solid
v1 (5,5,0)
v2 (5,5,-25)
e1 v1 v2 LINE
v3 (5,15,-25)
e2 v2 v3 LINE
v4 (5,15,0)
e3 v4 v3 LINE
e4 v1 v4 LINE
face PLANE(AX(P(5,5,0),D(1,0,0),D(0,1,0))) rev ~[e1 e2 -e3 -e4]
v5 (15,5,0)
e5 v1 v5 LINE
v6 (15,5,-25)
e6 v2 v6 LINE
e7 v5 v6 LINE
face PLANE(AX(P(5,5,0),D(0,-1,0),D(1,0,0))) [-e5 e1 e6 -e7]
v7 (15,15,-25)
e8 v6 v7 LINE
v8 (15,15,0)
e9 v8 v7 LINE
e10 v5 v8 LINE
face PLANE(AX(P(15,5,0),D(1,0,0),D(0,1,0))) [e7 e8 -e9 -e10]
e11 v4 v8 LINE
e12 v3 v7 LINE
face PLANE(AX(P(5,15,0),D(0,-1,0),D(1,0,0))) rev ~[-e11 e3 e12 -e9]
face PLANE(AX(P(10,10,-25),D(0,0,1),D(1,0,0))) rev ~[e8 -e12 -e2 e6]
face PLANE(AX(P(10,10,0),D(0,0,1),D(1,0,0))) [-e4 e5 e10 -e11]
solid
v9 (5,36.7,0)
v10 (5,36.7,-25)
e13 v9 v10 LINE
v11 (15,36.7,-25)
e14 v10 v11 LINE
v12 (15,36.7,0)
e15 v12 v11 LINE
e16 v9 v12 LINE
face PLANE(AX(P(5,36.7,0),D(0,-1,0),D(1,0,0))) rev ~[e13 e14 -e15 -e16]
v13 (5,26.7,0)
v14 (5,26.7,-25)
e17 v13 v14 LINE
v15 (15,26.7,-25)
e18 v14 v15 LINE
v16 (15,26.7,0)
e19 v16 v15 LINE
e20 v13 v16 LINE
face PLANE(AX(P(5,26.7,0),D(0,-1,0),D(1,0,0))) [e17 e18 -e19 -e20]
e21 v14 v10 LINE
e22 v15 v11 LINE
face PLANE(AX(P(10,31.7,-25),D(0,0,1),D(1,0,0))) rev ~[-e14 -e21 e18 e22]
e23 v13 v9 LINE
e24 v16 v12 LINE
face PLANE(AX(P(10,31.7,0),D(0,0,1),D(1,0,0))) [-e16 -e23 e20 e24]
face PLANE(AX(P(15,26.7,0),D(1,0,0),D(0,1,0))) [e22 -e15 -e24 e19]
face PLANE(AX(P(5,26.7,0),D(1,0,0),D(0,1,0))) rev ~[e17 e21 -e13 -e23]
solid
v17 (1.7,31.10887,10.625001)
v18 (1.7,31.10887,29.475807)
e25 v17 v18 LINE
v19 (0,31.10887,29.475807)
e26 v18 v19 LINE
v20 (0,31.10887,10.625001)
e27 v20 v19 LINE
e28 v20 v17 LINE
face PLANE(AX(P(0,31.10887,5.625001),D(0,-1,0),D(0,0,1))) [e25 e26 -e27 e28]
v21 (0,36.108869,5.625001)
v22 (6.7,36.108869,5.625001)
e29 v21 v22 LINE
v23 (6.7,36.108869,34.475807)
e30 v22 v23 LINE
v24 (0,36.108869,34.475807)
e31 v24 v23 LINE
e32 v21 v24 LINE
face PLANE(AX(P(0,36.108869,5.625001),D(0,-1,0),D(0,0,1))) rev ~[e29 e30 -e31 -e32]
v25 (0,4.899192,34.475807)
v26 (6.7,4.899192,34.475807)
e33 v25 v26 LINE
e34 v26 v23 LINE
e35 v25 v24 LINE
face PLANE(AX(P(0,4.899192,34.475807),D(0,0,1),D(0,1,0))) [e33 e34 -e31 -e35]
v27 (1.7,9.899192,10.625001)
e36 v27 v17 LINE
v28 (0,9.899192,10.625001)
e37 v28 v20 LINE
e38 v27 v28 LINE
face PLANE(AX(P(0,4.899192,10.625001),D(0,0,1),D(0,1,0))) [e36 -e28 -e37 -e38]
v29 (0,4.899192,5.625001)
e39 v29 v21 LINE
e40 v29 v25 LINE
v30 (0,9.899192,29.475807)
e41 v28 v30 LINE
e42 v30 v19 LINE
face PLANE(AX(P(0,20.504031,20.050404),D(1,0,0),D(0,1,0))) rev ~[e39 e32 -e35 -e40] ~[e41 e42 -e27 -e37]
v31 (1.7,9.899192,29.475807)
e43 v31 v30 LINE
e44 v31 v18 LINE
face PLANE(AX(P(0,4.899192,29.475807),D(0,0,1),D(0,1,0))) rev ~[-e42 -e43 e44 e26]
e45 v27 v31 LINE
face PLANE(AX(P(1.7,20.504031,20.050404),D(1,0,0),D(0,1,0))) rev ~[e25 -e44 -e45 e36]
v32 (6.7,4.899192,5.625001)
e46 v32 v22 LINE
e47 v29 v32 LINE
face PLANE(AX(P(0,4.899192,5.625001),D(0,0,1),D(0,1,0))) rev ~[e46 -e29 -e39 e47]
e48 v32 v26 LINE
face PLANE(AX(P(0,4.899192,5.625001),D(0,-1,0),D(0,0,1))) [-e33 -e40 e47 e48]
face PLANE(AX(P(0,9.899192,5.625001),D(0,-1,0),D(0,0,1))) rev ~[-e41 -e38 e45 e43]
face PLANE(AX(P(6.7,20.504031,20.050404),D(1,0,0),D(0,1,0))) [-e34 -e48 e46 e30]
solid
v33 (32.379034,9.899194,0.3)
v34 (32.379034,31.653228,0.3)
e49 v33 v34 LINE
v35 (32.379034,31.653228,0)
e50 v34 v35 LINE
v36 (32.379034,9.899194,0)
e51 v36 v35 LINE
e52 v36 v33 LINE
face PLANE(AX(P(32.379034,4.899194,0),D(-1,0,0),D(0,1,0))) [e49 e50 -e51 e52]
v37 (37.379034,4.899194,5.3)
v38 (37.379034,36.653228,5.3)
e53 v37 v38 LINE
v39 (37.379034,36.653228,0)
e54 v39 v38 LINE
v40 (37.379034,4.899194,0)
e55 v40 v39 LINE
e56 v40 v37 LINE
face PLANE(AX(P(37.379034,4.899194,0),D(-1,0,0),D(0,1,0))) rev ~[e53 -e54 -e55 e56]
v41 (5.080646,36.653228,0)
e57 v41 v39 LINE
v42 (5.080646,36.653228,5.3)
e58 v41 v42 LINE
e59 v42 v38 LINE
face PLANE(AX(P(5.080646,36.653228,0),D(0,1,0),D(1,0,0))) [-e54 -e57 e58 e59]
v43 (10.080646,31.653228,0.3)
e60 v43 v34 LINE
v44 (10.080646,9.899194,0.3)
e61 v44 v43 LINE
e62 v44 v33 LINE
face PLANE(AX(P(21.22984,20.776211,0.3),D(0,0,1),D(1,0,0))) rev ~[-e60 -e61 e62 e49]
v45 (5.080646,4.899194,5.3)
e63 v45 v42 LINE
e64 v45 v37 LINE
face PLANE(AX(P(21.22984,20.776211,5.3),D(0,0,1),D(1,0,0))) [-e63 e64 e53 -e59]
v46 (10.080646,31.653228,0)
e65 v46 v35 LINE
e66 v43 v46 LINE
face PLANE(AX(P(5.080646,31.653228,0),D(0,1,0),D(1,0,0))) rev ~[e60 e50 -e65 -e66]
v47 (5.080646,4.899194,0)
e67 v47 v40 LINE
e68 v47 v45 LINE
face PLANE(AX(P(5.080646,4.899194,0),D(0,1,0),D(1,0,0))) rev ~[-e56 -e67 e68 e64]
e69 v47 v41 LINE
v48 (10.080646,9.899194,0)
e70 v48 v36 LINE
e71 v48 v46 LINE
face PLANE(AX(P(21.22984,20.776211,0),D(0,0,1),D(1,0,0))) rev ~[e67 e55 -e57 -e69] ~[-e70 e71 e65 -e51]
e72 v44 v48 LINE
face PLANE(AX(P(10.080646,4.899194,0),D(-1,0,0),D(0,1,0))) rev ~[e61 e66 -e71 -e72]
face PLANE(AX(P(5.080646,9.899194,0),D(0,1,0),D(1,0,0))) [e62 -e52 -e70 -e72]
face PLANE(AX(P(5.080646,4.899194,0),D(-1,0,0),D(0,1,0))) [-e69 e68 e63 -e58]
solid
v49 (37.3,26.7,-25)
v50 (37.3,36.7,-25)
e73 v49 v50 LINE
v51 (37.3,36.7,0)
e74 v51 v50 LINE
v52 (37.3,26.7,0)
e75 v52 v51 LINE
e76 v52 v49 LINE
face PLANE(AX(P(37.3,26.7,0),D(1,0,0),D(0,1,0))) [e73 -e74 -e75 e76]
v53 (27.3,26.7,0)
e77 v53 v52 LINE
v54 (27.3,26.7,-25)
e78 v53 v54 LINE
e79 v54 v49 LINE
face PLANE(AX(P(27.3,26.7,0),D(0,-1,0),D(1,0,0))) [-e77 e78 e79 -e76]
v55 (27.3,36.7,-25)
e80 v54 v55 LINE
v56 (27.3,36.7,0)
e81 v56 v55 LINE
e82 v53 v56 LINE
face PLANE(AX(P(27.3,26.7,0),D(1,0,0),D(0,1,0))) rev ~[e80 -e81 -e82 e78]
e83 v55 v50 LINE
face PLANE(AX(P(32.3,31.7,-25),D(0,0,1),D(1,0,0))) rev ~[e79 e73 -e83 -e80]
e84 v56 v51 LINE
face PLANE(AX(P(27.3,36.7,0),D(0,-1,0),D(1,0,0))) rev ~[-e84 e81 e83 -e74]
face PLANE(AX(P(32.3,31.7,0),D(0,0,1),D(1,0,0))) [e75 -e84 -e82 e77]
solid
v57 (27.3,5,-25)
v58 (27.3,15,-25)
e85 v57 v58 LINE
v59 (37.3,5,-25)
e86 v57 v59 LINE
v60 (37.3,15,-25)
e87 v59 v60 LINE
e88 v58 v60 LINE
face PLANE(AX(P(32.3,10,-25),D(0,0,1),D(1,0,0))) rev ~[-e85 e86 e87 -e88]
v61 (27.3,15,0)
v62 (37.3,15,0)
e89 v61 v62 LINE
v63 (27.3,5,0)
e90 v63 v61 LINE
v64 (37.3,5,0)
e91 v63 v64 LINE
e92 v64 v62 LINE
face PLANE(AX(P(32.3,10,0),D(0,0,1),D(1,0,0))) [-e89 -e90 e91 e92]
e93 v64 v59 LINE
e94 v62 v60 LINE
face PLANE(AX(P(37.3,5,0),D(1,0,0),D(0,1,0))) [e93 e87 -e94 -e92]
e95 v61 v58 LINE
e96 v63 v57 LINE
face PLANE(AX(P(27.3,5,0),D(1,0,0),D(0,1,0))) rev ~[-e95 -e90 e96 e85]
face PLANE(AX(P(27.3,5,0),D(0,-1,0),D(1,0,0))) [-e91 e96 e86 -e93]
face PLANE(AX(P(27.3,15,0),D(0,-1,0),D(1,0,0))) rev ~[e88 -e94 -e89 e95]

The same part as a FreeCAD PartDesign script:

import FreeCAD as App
import Part
import Sketcher
from FreeCAD import Vector
Q = App.Units.Quantity


def faces_at(feature, points):
    """Names of the faces that lie closest to the given points."""
    faces = feature.Shape.Faces
    near = lambda p: min(range(len(faces)), key=lambda i: faces[i].distToShape(Part.Vertex(*p))[0])
    return sorted({f"Face{near(p) + 1}" for p in points})

doc = App.newDocument("Part")
body = doc.addObject("PartDesign::Body", "Body")
body.AllowCompound = True

sketch1 = body.newObject("Sketcher::SketchObject", "Sketch")
sketch1.AttachmentSupport = (doc.getObject("XY_Plane"), [""])
sketch1.MapMode = "FlatFace"
sketch1.addGeometry([
    Part.LineSegment(Vector(5, 15, 0), Vector(5, 5, 0)),
    Part.LineSegment(Vector(5, 5, 0), Vector(15, 5, 0)),
    Part.LineSegment(Vector(15, 5, 0), Vector(15, 15, 0)),
    Part.LineSegment(Vector(15, 15, 0), Vector(5, 15, 0)),
    Part.LineSegment(Vector(5, 36.7, 0), Vector(5, 26.7, 0)),
    Part.LineSegment(Vector(5, 26.7, 0), Vector(15, 26.7, 0)),
    Part.LineSegment(Vector(15, 26.7, 0), Vector(15, 36.7, 0)),
    Part.LineSegment(Vector(15, 36.7, 0), Vector(5, 36.7, 0)),
    Part.LineSegment(Vector(27.3, 15, 0), Vector(27.3, 5, 0)),
    Part.LineSegment(Vector(27.3, 5, 0), Vector(37.3, 5, 0)),
    Part.LineSegment(Vector(37.3, 5, 0), Vector(37.3, 15, 0)),
    Part.LineSegment(Vector(37.3, 15, 0), Vector(27.3, 15, 0)),
    Part.LineSegment(Vector(27.3, 36.7, 0), Vector(27.3, 26.7, 0)),
    Part.LineSegment(Vector(27.3, 26.7, 0), Vector(37.3, 26.7, 0)),
    Part.LineSegment(Vector(37.3, 26.7, 0), Vector(37.3, 36.7, 0)),
    Part.LineSegment(Vector(37.3, 36.7, 0), Vector(27.3, 36.7, 0)),
], False)
sketch1.addConstraint([
    Sketcher.Constraint("Coincident", 0, 2, 1, 1),
    Sketcher.Constraint("Coincident", 1, 2, 2, 1),
    Sketcher.Constraint("Coincident", 2, 2, 3, 1),
    Sketcher.Constraint("Coincident", 3, 2, 0, 1),
    Sketcher.Constraint("Coincident", 4, 2, 5, 1),
    Sketcher.Constraint("Coincident", 5, 2, 6, 1),
    Sketcher.Constraint("Coincident", 6, 2, 7, 1),
    Sketcher.Constraint("Coincident", 7, 2, 4, 1),
    Sketcher.Constraint("Coincident", 8, 2, 9, 1),
    Sketcher.Constraint("Coincident", 9, 2, 10, 1),
    Sketcher.Constraint("Coincident", 10, 2, 11, 1),
    Sketcher.Constraint("Coincident", 11, 2, 8, 1),
    Sketcher.Constraint("Coincident", 12, 2, 13, 1),
    Sketcher.Constraint("Coincident", 13, 2, 14, 1),
    Sketcher.Constraint("Coincident", 14, 2, 15, 1),
    Sketcher.Constraint("Coincident", 15, 2, 12, 1),
    Sketcher.Constraint("Vertical", 0),
    Sketcher.Constraint("Horizontal", 1),
    Sketcher.Constraint("Vertical", 2),
    Sketcher.Constraint("Horizontal", 3),
    Sketcher.Constraint("Vertical", 4),
    Sketcher.Constraint("Horizontal", 5),
    Sketcher.Constraint("Vertical", 6),
    Sketcher.Constraint("Horizontal", 7),
    Sketcher.Constraint("Vertical", 8),
    Sketcher.Constraint("Horizontal", 9),
    Sketcher.Constraint("Vertical", 10),
    Sketcher.Constraint("Horizontal", 11),
    Sketcher.Constraint("Vertical", 12),
    Sketcher.Constraint("Horizontal", 13),
    Sketcher.Constraint("Vertical", 14),
    Sketcher.Constraint("Horizontal", 15),
    Sketcher.Constraint("Horizontal", 1, 2, 8, 2),
    Sketcher.Constraint("Horizontal", 3, 2, 10, 2),
    Sketcher.Constraint("Horizontal", 5, 2, 12, 2),
    Sketcher.Constraint("Horizontal", 7, 2, 14, 2),
    Sketcher.Constraint("Vertical", 3, 2, 4, 2),
    Sketcher.Constraint("Vertical", 2, 2, 5, 2),
    Sketcher.Constraint("Vertical", 11, 2, 12, 2),
    Sketcher.Constraint("Vertical", 10, 2, 13, 2),
    Sketcher.Constraint("Equal", 7, 9),
    Sketcher.Constraint("Equal", 15, 0),
    Sketcher.Constraint("Equal", 2, 4),
    Sketcher.Constraint("DistanceX", 1, 1, 1, 2, Q("10 mm")),
    Sketcher.Constraint("DistanceX", -1, 1, 0, 2, Q("5 mm")),
    Sketcher.Constraint("DistanceY", -1, 1, 0, 2, Q("5 mm")),
    Sketcher.Constraint("DistanceY", -1, 1, 4, 2, Q("26.7 mm")),
    Sketcher.Constraint("DistanceX", -1, 1, 8, 2, Q("27.3 mm")),
])
pad1 = body.newObject("PartDesign::Pad", "Pad")
pad1.Profile = sketch1
pad1.Length = 25
pad1.Reversed = True
body2 = doc.addObject("PartDesign::Body", "Body001")

sketch2 = body2.newObject("Sketcher::SketchObject", "Sketch001")
sketch2.AttachmentSupport = (doc.getObject("XY_Plane001"), [""])
sketch2.MapMode = "FlatFace"
sketch2.addGeometry([
    Part.LineSegment(Vector(5.080646, 36.653228, 0), Vector(5.080646, 4.899194, 0)),
    Part.LineSegment(Vector(5.080646, 4.899194, 0), Vector(37.379034, 4.899194, 0)),
    Part.LineSegment(Vector(37.379034, 4.899194, 0), Vector(37.379034, 36.653228, 0)),
    Part.LineSegment(Vector(37.379034, 36.653228, 0), Vector(5.080646, 36.653228, 0)),
], False)
sketch2.addConstraint([
    Sketcher.Constraint("Coincident", 0, 2, 1, 1),
    Sketcher.Constraint("Coincident", 1, 2, 2, 1),
    Sketcher.Constraint("Coincident", 2, 2, 3, 1),
    Sketcher.Constraint("Coincident", 3, 2, 0, 1),
    Sketcher.Constraint("Vertical", 0),
    Sketcher.Constraint("Horizontal", 1),
    Sketcher.Constraint("Vertical", 2),
    Sketcher.Constraint("Horizontal", 3),
    Sketcher.Constraint("DistanceX", 1, 1, 1, 2, Q("32.298388 mm")),
    Sketcher.Constraint("DistanceY", 0, 2, 0, 1, Q("31.754034 mm")),
    Sketcher.Constraint("DistanceX", -1, 1, 0, 2, Q("5.080646 mm")),
    Sketcher.Constraint("DistanceY", -1, 1, 0, 2, Q("4.899194 mm")),
])
pad2 = body2.newObject("PartDesign::Pad", "Pad001")
pad2.Profile = sketch2
pad2.Length = 5.3
doc.recompute()

thickness = body2.newObject("PartDesign::Thickness", "Thickness")
thickness.Base = (pad2, faces_at(pad2, [(21.23, 20.776, 0)]))
thickness.Value = 5
thickness.Reversed = True
thickness.Join = "Arc"
body3 = doc.addObject("PartDesign::Body", "Body002")

sketch3 = body3.newObject("Sketcher::SketchObject", "Sketch002")
sketch3.AttachmentSupport = (doc.getObject("YZ_Plane002"), [""])
sketch3.MapMode = "FlatFace"
sketch3.addGeometry([
    Part.LineSegment(Vector(4.899192, 34.475807, 0), Vector(4.899192, 5.625001, 0)),
    Part.LineSegment(Vector(4.899192, 5.625001, 0), Vector(36.108869, 5.625001, 0)),
    Part.LineSegment(Vector(36.108869, 5.625001, 0), Vector(36.108869, 34.475807, 0)),
    Part.LineSegment(Vector(36.108869, 34.475807, 0), Vector(4.899192, 34.475807, 0)),
], False)
sketch3.addConstraint([
    Sketcher.Constraint("Coincident", 0, 2, 1, 1),
    Sketcher.Constraint("Coincident", 1, 2, 2, 1),
    Sketcher.Constraint("Coincident", 2, 2, 3, 1),
    Sketcher.Constraint("Coincident", 3, 2, 0, 1),
    Sketcher.Constraint("Vertical", 0),
    Sketcher.Constraint("Horizontal", 1),
    Sketcher.Constraint("Vertical", 2),
    Sketcher.Constraint("Horizontal", 3),
    Sketcher.Constraint("DistanceY", -1, 1, 0, 2, Q("5.625001 mm")),
    Sketcher.Constraint("DistanceX", 1, 1, 1, 2, Q("31.209677 mm")),
    Sketcher.Constraint("DistanceY", 0, 2, 0, 1, Q("28.850806 mm")),
    Sketcher.Constraint("DistanceX", -1, 1, 1, 2, Q("36.108869 mm")),
])
pad3 = body3.newObject("PartDesign::Pad", "Pad002")
pad3.Profile = sketch3
pad3.Length = 6.7
doc.recompute()

thickness2 = body3.newObject("PartDesign::Thickness", "Thickness001")
thickness2.Base = (pad3, faces_at(pad3, [(0, 20.504, 20.05)]))
thickness2.Value = 5
thickness2.Reversed = True
thickness2.Join = "Arc"

doc.recompute()
